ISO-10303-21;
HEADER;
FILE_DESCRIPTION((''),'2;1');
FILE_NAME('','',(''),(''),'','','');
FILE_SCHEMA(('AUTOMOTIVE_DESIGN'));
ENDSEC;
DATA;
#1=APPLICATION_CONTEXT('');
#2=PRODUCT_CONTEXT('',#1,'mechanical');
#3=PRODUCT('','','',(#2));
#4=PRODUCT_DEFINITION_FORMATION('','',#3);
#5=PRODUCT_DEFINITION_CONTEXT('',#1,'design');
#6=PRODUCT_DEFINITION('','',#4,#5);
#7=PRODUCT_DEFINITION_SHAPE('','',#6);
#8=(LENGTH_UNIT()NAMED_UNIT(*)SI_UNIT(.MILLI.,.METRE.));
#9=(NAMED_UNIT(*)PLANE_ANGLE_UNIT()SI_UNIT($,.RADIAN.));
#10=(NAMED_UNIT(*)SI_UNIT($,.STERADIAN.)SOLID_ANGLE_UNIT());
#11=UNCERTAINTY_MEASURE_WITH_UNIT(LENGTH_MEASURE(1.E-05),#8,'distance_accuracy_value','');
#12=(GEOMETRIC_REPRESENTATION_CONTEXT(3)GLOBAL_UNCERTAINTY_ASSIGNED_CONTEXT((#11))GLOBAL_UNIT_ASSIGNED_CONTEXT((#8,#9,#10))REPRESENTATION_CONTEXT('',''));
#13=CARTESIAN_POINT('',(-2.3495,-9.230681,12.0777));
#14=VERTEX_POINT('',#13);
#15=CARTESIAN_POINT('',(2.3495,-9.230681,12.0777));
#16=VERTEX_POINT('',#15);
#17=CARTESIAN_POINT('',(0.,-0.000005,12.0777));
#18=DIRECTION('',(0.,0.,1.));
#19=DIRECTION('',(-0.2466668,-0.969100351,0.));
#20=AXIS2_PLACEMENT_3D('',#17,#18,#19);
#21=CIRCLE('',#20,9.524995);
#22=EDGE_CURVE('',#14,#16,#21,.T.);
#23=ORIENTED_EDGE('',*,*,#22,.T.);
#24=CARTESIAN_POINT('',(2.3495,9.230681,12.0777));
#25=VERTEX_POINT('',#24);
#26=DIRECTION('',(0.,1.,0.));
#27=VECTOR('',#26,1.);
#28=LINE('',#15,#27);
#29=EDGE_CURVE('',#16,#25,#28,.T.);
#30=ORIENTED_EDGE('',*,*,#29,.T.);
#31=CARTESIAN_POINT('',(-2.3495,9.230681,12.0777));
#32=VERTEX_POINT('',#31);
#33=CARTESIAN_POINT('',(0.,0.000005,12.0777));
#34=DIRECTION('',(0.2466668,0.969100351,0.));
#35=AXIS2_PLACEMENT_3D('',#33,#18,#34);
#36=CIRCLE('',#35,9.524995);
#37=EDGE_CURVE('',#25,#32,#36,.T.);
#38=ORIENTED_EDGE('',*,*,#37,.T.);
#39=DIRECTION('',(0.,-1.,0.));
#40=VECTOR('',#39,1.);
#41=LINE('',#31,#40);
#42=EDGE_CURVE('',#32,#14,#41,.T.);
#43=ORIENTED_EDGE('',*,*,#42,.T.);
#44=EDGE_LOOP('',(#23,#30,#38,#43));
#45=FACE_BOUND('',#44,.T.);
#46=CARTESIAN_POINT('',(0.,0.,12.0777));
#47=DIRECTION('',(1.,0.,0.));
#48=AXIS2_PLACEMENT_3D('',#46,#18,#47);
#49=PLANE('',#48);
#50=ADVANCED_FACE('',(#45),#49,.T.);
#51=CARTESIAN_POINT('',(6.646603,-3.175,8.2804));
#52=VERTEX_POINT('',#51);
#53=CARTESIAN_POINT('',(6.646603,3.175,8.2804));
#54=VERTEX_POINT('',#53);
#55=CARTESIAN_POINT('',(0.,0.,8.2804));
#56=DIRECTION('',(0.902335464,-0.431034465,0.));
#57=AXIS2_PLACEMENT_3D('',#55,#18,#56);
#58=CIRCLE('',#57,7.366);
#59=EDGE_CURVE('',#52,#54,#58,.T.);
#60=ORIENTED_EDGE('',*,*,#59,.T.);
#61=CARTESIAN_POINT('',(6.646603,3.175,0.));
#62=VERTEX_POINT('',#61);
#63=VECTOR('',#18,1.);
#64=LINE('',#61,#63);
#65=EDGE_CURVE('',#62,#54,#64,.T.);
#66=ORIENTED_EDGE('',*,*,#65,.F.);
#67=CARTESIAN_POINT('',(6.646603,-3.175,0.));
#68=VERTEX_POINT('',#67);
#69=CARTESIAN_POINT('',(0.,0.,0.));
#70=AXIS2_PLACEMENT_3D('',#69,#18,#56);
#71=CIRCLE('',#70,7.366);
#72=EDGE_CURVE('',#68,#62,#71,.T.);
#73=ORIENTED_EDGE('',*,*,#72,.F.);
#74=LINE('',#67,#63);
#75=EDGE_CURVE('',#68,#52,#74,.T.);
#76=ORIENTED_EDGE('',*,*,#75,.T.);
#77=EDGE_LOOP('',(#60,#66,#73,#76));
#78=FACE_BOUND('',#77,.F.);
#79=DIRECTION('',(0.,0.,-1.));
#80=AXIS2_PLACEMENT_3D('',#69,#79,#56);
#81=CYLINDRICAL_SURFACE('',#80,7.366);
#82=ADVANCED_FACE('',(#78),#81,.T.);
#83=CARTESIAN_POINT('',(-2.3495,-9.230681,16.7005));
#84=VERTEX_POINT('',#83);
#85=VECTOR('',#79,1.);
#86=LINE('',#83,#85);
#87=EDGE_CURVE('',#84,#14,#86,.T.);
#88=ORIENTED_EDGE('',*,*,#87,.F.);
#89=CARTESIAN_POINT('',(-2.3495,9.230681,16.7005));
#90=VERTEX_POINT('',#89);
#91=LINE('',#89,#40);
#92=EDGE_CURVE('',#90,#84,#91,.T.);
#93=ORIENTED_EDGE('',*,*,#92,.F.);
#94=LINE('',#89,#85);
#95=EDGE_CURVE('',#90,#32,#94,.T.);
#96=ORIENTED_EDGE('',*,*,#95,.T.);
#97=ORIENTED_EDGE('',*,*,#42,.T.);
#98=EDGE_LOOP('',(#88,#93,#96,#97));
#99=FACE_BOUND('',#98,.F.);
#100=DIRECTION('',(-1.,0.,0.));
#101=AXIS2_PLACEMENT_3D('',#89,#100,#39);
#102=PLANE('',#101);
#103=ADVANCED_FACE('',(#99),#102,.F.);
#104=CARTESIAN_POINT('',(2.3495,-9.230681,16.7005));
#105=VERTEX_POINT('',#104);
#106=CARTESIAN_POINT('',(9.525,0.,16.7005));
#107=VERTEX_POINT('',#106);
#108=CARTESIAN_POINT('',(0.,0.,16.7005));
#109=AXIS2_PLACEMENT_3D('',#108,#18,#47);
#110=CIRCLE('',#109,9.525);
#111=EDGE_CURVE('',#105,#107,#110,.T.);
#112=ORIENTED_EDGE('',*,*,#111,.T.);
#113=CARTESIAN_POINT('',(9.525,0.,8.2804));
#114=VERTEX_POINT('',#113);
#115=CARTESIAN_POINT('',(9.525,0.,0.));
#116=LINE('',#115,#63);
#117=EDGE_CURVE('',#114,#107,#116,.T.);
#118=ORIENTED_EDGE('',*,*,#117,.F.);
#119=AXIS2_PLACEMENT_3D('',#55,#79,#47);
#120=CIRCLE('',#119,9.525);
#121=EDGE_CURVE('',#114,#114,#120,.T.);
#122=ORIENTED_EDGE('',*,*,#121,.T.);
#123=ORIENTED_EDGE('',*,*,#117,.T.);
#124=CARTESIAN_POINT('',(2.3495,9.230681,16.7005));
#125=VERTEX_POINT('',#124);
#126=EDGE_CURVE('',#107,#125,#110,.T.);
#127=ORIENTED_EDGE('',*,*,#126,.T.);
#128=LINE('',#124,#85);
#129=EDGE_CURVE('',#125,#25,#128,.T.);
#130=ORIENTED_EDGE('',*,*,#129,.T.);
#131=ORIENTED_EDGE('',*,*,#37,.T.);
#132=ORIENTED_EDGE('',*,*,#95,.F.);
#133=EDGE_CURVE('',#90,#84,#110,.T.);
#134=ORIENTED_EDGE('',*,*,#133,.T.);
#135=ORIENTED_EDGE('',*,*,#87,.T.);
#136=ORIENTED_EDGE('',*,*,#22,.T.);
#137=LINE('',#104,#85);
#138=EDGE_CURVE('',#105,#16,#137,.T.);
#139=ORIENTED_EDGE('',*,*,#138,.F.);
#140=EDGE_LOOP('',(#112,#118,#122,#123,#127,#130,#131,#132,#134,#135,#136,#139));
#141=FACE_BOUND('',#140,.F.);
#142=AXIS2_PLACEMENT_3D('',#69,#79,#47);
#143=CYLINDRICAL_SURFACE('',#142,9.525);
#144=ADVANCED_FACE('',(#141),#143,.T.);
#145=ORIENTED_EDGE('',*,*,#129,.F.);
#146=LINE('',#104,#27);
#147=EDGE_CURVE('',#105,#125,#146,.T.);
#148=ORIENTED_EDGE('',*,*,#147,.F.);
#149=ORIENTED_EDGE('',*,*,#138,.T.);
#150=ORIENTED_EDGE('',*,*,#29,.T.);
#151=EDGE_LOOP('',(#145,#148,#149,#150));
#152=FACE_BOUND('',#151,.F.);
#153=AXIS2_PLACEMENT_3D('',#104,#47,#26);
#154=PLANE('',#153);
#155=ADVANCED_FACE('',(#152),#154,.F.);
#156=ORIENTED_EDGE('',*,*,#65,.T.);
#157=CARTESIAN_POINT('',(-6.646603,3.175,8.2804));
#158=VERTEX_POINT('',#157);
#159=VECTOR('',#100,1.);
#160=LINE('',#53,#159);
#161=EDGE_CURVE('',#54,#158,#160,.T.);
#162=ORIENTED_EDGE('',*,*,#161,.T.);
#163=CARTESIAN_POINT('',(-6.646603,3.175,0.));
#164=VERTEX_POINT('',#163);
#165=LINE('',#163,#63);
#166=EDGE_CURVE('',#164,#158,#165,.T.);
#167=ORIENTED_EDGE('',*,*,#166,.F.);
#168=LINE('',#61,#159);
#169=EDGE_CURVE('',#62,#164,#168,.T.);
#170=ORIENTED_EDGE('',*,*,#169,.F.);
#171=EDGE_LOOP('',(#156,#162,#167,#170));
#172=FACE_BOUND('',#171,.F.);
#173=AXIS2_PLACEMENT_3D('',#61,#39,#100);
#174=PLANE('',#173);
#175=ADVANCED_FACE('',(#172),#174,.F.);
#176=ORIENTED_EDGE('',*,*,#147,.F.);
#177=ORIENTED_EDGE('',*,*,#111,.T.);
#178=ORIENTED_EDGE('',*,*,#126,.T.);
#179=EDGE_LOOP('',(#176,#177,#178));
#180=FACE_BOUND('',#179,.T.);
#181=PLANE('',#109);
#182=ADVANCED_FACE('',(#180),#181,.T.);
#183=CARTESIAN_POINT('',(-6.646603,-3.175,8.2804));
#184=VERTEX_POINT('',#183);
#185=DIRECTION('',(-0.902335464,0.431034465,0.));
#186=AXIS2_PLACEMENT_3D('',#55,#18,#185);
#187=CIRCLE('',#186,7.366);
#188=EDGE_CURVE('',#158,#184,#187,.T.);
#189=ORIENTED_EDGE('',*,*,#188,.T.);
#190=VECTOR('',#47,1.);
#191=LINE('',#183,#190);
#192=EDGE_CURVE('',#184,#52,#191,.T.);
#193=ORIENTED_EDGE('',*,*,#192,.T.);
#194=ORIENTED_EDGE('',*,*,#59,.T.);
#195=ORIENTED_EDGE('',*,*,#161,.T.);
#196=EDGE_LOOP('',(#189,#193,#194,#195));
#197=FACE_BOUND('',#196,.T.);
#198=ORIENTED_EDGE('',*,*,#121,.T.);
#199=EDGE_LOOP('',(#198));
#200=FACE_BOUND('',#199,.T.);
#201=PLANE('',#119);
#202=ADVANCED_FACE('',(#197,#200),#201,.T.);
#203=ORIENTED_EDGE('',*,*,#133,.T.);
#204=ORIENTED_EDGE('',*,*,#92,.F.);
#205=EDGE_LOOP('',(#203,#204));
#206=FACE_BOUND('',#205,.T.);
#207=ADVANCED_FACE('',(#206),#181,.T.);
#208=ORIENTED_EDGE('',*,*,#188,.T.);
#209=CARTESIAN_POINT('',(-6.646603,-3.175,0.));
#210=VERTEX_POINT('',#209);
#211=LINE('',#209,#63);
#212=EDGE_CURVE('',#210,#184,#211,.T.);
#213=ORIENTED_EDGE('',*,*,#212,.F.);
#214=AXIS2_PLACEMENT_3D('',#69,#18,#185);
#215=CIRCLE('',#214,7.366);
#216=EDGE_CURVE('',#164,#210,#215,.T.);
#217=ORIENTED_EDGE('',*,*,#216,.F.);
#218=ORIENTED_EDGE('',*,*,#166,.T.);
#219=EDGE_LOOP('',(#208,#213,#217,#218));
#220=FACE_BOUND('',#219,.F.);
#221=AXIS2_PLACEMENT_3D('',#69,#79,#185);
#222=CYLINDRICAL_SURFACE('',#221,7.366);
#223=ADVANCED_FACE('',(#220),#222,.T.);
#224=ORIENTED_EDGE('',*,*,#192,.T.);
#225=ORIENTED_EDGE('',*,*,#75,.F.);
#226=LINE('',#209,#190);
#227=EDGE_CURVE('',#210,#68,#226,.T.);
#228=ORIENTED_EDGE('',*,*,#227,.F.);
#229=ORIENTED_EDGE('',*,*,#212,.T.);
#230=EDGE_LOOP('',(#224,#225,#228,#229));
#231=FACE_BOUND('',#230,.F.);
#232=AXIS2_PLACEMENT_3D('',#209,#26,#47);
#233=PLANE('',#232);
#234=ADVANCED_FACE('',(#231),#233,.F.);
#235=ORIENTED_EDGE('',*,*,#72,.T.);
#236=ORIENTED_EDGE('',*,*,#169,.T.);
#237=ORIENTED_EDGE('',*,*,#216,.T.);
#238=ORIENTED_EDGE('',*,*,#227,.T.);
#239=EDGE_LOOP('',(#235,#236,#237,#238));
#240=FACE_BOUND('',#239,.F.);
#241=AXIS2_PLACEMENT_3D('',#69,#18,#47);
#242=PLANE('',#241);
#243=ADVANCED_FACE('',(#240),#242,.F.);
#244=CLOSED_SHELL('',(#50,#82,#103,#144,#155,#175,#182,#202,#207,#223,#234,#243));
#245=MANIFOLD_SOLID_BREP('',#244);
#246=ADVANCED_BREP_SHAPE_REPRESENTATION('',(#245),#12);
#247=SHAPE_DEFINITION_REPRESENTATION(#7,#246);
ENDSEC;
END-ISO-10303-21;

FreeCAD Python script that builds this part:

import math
import FreeCAD as App
import Part
import Sketcher

V = App.Vector
Q = App.Units.Quantity

doc = App.newDocument("Part")
body = doc.addObject("PartDesign::Body", "Body")

# Sketch on XY plane
sketch1 = body.newObject("Sketcher::SketchObject", "Sketch")
sketch1.AttachmentSupport = (doc.getObject("XY_Plane"), [""])
sketch1.MapMode = "FlatFace"
sketch1.addGeometry(Part.Circle(V(0, 0, 0), V(0, 0, 1), 10), False)
sketch1.addConstraint([
    Sketcher.Constraint("Coincident", 0, 3, -1, 1),
    Sketcher.Constraint("Diameter", 0, Q("0.75 in")),
])
pad1 = body.newObject("PartDesign::Pad", "Pad")
pad1.Profile = sketch1
pad1.Length = Q("0.6575 in")

# Sketch on XY plane
sketch2 = body.newObject("Sketcher::SketchObject", "Sketch001")
sketch2.AttachmentSupport = (doc.getObject("XY_Plane"), [""])
sketch2.MapMode = "FlatFace"
sketch2.AttachmentOffset = App.Placement(V(0, 0, 0.6575 * 25.4), App.Rotation())
sketch2.addGeometry([
    Part.ArcOfCircle(Part.Circle(V(0, 0, 0), V(0, 0, 1), 9.5), math.radians(76), math.radians(104)),
    Part.LineSegment(V(-2.3, 9.2, 0), V(-2.3, -9.2, 0)),
    Part.ArcOfCircle(Part.Circle(V(0, 0, 0), V(0, 0, 1), 9.5), math.radians(-104), math.radians(-76)),
    Part.LineSegment(V(2.3, -9.2, 0), V(2.3, 9.2, 0)),
], False)
sketch2.addConstraint([
    Sketcher.Constraint("Coincident", 0, 2, 1, 1),
    Sketcher.Constraint("Coincident", 1, 2, 2, 1),
    Sketcher.Constraint("Coincident", 2, 2, 3, 1),
    Sketcher.Constraint("Coincident", 3, 2, 0, 1),
    Sketcher.Constraint("Vertical", 1),
    Sketcher.Constraint("Vertical", 3),
    Sketcher.Constraint("Coincident", 0, 3, -1, 1),
    Sketcher.Constraint("Coincident", 2, 3, -1, 1),
    Sketcher.Constraint("Equal", 0, 2),
    Sketcher.Constraint("Horizontal", 1, 2, 2, 2),
    Sketcher.Constraint("DistanceX", 1, 2, 2, 2, Q("0.185 in")),
    Sketcher.Constraint("Radius", 0, Q("9.524995 mm")),
])
pocket1 = body.newObject("PartDesign::Pocket", "Pocket")
pocket1.Profile = sketch2
pocket1.Length = Q("0.182 in")

# Sketch on XY plane
sketch3 = body.newObject("Sketcher::SketchObject", "Sketch002")
sketch3.AttachmentSupport = (doc.getObject("XY_Plane"), [""])
sketch3.MapMode = "FlatFace"
sketch3.addGeometry([
    Part.Circle(V(0, 0, 0), V(0, 0, 1), 10),  # 0
    Part.LineSegment(V(7, 3, 0), V(-7, 3, 0)),  # 1
    Part.ArcOfCircle(Part.Circle(V(0, 0, 0), V(0, 0, 1), 7), math.radians(154), math.radians(206)),  # 2
    Part.LineSegment(V(-7, -3, 0), V(7, -3, 0)),  # 3
    Part.ArcOfCircle(Part.Circle(V(0, 0, 0), V(0, 0, 1), 7), math.radians(-26), math.radians(26)),  # 4
], False)
sketch3.addConstraint([
    Sketcher.Constraint("Coincident", 1, 2, 2, 1),
    Sketcher.Constraint("Coincident", 2, 2, 3, 1),
    Sketcher.Constraint("Coincident", 3, 2, 4, 1),
    Sketcher.Constraint("Coincident", 4, 2, 1, 1),
    Sketcher.Constraint("Horizontal", 1),
    Sketcher.Constraint("Horizontal", 3),
    Sketcher.Constraint("Coincident", 0, 3, -1, 1),
    Sketcher.Constraint("Coincident", 2, 3, -1, 1),
    Sketcher.Constraint("Coincident", 4, 3, -1, 1),
    Sketcher.Constraint("Equal", 2, 4),
    Sketcher.Constraint("Vertical", 1, 2, 2, 2),
    Sketcher.Constraint("Diameter", 0, Q("0.75 in")),
    Sketcher.Constraint("Radius", 2, Q("0.29 in")),
    Sketcher.Constraint("DistanceY", 2, 2, 1, 2, Q("0.25 in")),
])
pocket2 = body.newObject("PartDesign::Pocket", "Pocket001")
pocket2.Profile = sketch3
pocket2.Length = Q("0.326 in")
pocket2.Reversed = True

doc.recompute()
